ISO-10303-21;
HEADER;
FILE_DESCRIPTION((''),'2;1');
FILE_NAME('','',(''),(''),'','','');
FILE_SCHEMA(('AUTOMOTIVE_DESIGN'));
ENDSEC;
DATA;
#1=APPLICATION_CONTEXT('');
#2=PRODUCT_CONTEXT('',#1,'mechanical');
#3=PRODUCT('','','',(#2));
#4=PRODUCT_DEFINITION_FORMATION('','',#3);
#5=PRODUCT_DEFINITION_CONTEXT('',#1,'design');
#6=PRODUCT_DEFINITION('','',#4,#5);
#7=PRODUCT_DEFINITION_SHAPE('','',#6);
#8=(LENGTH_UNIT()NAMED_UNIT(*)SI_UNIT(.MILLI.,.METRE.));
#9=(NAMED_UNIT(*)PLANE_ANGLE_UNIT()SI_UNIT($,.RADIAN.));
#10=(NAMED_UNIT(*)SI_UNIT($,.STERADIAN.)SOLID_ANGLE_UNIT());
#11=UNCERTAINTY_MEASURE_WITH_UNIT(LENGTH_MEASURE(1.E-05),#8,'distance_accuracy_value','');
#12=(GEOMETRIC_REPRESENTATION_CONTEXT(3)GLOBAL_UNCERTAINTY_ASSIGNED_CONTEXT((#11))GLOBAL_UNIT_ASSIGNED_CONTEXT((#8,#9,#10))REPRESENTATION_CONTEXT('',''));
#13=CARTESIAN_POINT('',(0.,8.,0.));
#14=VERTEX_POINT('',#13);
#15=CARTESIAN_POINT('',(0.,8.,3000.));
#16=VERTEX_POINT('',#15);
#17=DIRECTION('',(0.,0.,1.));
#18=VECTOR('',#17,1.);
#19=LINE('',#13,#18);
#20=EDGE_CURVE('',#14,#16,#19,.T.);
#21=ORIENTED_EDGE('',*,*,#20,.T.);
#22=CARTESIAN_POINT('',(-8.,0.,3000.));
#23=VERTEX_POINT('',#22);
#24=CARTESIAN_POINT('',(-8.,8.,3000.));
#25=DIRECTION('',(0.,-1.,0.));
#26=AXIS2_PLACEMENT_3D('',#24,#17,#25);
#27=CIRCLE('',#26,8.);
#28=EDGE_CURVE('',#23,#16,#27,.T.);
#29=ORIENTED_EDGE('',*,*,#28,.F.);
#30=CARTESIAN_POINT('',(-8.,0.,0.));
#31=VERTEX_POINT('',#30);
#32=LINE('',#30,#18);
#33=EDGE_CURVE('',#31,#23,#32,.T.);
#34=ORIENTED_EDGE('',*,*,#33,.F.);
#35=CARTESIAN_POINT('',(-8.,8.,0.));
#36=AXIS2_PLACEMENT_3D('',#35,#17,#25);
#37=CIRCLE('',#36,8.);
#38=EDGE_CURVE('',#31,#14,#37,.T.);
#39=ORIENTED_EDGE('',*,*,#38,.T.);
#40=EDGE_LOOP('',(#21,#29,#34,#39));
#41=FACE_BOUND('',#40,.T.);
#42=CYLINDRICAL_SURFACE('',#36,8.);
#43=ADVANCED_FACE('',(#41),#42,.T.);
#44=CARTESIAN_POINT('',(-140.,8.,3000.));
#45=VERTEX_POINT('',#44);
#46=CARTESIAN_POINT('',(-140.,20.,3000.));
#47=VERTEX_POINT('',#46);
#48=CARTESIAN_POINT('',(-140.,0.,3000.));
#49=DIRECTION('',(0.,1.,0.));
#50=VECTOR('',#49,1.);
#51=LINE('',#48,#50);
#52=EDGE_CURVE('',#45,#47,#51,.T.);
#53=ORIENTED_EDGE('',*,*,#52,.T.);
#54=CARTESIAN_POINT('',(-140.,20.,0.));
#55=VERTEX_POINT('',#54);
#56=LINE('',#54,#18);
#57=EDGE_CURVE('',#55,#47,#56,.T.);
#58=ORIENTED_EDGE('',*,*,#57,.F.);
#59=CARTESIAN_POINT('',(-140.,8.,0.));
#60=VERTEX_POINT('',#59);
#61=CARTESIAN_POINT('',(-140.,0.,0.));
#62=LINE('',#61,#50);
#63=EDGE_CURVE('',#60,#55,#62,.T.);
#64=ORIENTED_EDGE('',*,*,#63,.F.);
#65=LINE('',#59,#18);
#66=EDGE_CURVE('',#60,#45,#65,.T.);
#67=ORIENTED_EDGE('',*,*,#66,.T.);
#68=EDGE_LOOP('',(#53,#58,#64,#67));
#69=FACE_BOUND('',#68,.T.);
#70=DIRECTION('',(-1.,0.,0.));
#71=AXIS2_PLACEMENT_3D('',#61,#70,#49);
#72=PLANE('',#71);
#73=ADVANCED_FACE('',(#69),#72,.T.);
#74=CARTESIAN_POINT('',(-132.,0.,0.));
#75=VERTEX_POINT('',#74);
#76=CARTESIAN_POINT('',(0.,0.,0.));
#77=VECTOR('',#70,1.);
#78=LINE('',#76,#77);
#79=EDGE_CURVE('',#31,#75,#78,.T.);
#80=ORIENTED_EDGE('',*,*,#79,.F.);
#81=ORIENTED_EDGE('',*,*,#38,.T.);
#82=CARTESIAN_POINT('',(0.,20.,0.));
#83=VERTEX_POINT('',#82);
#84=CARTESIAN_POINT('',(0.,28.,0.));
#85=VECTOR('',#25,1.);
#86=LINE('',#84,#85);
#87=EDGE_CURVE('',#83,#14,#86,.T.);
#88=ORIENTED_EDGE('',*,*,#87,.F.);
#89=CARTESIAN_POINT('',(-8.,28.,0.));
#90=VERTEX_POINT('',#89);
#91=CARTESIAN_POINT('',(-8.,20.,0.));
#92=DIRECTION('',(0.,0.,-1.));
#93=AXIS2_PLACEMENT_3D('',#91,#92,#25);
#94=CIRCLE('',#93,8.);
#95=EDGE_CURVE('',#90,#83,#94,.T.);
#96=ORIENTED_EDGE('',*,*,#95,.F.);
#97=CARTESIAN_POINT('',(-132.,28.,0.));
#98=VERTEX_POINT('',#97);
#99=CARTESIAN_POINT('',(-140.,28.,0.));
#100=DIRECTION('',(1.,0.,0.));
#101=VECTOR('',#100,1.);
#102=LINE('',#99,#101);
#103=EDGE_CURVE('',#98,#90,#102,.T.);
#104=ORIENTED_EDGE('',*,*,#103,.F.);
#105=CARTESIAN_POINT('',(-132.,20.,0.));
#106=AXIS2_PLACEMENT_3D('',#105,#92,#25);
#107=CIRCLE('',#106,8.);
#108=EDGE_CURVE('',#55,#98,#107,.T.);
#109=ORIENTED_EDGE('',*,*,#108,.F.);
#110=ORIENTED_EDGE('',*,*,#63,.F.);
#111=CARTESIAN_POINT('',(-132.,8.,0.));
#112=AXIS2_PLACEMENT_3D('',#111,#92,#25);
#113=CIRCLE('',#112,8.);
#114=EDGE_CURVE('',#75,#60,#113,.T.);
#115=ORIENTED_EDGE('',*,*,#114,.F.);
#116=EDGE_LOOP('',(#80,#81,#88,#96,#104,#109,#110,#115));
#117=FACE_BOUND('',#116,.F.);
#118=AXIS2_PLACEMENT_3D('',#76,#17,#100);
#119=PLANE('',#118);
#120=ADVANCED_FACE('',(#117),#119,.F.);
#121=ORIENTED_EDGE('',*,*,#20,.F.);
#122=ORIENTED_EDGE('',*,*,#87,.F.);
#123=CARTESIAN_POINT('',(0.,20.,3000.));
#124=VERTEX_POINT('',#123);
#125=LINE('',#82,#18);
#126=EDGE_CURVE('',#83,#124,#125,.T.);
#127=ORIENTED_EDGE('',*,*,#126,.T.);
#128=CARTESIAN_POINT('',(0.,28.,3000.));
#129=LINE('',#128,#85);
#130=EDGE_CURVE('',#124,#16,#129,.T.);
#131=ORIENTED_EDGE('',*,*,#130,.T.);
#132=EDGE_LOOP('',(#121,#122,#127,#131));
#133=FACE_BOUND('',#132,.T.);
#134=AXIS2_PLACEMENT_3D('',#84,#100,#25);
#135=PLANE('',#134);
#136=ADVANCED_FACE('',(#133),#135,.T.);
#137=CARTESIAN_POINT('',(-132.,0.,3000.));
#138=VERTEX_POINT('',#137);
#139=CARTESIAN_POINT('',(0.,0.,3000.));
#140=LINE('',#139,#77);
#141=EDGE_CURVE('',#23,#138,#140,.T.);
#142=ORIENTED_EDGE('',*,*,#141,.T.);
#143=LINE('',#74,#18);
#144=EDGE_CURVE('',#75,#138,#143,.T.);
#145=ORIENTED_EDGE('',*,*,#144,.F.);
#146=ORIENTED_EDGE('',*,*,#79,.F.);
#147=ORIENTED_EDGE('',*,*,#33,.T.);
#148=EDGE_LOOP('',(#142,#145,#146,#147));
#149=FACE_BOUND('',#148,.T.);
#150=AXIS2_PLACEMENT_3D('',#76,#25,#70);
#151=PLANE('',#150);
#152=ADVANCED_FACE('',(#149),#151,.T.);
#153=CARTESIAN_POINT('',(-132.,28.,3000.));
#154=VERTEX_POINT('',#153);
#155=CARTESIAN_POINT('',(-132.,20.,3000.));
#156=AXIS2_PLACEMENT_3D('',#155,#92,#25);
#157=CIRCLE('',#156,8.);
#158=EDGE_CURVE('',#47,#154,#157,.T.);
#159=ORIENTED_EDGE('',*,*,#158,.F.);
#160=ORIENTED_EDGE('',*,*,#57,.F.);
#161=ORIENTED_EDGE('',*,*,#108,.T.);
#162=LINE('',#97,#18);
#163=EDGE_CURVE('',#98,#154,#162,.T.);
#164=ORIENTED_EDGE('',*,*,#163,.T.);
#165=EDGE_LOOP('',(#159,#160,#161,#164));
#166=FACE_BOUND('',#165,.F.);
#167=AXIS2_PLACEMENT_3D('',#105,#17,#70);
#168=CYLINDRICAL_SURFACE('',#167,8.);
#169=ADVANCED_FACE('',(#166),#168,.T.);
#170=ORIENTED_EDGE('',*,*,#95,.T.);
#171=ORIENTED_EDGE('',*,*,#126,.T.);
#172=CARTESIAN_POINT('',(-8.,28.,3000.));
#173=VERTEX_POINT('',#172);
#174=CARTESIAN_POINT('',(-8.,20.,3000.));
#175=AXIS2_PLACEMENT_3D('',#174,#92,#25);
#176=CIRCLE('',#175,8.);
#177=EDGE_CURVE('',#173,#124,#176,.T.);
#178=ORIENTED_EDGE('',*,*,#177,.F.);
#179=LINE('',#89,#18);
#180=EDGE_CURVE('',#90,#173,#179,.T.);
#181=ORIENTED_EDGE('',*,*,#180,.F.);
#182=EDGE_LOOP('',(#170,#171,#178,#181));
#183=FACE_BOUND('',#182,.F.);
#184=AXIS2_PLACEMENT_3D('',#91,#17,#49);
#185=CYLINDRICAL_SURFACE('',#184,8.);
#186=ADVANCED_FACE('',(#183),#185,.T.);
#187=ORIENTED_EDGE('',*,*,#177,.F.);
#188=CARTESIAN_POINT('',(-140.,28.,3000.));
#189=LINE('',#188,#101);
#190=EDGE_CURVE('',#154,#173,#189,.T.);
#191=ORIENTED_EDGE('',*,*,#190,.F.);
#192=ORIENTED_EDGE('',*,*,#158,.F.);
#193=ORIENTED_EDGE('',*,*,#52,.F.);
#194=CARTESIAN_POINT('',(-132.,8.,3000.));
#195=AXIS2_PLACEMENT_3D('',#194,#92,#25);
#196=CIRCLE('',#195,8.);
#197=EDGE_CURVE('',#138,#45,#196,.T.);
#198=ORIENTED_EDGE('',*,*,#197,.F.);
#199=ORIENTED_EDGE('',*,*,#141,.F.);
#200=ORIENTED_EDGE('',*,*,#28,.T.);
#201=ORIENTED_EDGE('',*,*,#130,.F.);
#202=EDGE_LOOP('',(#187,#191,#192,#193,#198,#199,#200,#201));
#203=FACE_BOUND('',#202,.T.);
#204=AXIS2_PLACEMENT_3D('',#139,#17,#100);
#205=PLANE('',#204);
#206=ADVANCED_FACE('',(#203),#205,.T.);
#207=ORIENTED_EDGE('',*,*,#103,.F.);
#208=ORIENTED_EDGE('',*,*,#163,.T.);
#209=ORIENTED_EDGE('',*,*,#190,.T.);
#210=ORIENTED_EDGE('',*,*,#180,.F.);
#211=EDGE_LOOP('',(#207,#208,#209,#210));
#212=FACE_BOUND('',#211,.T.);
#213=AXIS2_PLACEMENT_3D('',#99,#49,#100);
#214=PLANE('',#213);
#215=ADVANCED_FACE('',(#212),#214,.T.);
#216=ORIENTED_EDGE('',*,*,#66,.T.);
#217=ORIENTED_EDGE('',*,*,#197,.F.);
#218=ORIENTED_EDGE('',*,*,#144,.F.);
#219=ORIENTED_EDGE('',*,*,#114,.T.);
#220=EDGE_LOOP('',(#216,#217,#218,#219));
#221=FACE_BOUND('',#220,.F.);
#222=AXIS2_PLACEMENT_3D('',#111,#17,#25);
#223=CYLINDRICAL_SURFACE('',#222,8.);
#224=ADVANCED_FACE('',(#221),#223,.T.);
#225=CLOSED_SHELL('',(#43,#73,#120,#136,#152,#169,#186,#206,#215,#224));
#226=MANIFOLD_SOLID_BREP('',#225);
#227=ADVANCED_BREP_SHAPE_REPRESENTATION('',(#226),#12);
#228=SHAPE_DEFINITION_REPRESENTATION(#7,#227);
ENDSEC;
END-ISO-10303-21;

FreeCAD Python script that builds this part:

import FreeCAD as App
import Part
import Sketcher
from FreeCAD import Vector


def edges_at(feature, points):
    """Names of the edges that pass closest to the given points."""
    edges = feature.Shape.Edges
    near = lambda p: min(range(len(edges)), key=lambda i: edges[i].distToShape(Part.Vertex(*p))[0])
    return sorted({f"Edge{near(p) + 1}" for p in points})

doc = App.newDocument("Part")
body = doc.addObject("PartDesign::Body", "Body")

# Sketch on XY plane
sketch1 = body.newObject("Sketcher::SketchObject", "Sketch")
sketch1.AttachmentSupport = (doc.getObject("XY_Plane"), [""])
sketch1.MapMode = "FlatFace"
sketch1.addGeometry([
    Part.LineSegment(Vector(-140, 0, 0), Vector(0, 0, 0)),
    Part.LineSegment(Vector(0, 0, 0), Vector(0, 28, 0)),
    Part.LineSegment(Vector(0, 28, 0), Vector(-140, 28, 0)),
    Part.LineSegment(Vector(-140, 28, 0), Vector(-140, 0, 0)),
], False)
sketch1.addConstraint([
    Sketcher.Constraint("Coincident", 0, 2, 1, 1),
    Sketcher.Constraint("Coincident", 1, 2, 2, 1),
    Sketcher.Constraint("Coincident", 2, 2, 3, 1),
    Sketcher.Constraint("Coincident", 3, 2, 0, 1),
    Sketcher.Constraint("Horizontal", 0),
    Sketcher.Constraint("Vertical", 1),
    Sketcher.Constraint("Horizontal", 2),
    Sketcher.Constraint("Vertical", 3),
    Sketcher.Constraint("Coincident", 0, 2, -1, 1),
    Sketcher.Constraint("DistanceX", 0, 1, 0, 2, 140.0),
    Sketcher.Constraint("DistanceY", 1, 1, 1, 2, 28.0),
])
pad1 = body.newObject("PartDesign::Pad", "Pad")
pad1.Profile = sketch1
pad1.Length = 3000
doc.recompute()

fillet = body.newObject("PartDesign::Fillet", "Fillet")
fillet.Base = (pad1, edges_at(pad1, [
    (0, 28, 1500),
    (0, 0, 1500),
    (-140, 28, 1500),
    (-140, 0, 1500),
]))
fillet.Radius = 8

doc.recompute()
